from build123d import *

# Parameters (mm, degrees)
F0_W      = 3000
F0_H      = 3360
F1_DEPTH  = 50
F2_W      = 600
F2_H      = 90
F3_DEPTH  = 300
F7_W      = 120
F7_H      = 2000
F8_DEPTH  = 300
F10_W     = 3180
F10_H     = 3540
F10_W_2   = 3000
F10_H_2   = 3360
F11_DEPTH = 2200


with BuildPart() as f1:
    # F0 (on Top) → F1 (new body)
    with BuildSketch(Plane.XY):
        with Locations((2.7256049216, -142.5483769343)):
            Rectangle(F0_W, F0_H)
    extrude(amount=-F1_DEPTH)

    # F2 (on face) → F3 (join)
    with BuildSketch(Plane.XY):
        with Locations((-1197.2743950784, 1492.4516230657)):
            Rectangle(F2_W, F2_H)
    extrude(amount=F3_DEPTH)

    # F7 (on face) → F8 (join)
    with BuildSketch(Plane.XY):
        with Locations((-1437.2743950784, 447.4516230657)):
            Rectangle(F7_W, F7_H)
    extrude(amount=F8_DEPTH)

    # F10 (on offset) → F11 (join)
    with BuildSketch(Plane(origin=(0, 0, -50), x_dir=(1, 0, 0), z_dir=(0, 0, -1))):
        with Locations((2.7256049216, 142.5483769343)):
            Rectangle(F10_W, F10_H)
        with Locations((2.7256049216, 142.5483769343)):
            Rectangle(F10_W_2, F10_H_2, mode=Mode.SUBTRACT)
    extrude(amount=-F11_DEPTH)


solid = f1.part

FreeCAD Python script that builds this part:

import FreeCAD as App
import Part
import Sketcher

V = App.Vector


def add_polygon(sketch, points):
    """Adds a closed chain of lines whose ends are joined by coincident constraints."""
    first, n = sketch.GeometryCount, len(points)
    for a, b in zip(points, points[1:] + points[:1]):
        sketch.addGeometry(Part.LineSegment(App.Vector(*a, 0), App.Vector(*b, 0)), False)
    for i in range(n):
        sketch.addConstraint(Sketcher.Constraint("Coincident", first + i, 2, first + (i + 1) % n, 1))

doc = App.newDocument("Part")
params = doc.addObject("Spreadsheet::Sheet", "Params")
for row, (alias, value) in enumerate([
    ("sketch1_width", "3000 mm"),
    ("sketch1_height", "3360 mm"),
    ("pad1_length", "50 mm"),
    ("sketch2_width", "600 mm"),
    ("sketch2_height", "90 mm"),
    ("pad2_length", "300 mm"),
    ("sketch3_width", "120 mm"),
    ("sketch3_height", "2000 mm"),
    ("pad3_length", "300 mm"),
    ("sketch4_width", "3180 mm"),
    ("sketch4_width2", "3000 mm"),
    ("sketch4_height", "3540 mm"),
    ("sketch4_height2", "3360 mm"),
    ("pad4_length", "2200 mm"),
], start=1):
    params.set(f"A{row}", alias)
    params.set(f"B{row}", "=" + value)
    params.setAlias(f"B{row}", alias)

body = doc.addObject("PartDesign::Body", "Body")

# Sketch on XY plane
sketch1 = doc.addObject("Sketcher::SketchObject", "Sketch")
body.addObject(sketch1)
sketch1.AttachmentSupport = (doc.XY_Plane, [""])
sketch1.MapMode = "FlatFace"
add_polygon(sketch1, [(-1497, 1537), (-1497, -1823), (1503, -1823), (1503, 1537)])  # lines 0-3
sketch1.addConstraint([
    Sketcher.Constraint("Vertical", 0),
    Sketcher.Constraint("Horizontal", 1),
    Sketcher.Constraint("Vertical", 2),
    Sketcher.Constraint("Horizontal", 3),
    Sketcher.Constraint("DistanceX", 1, 1, 1, 2, 3000.0),
    Sketcher.Constraint("DistanceY", 0, 2, 0, 1, 3360.0),
    Sketcher.Constraint("DistanceX", 0, 2, -1, 1, 1497.274395),
    Sketcher.Constraint("DistanceY", 0, 2, -1, 1, 1822.548377),
])
sketch1.setExpression("Constraints[8]", "Params.sketch1_width")
sketch1.setExpression("Constraints[9]", "Params.sketch1_height")
pad1 = doc.addObject("PartDesign::Pad", "Pad")
body.addObject(pad1)
pad1.Profile = sketch1
pad1.setExpression("Length", "Params.pad1_length")
pad1.Reversed = True

# Sketch on XY plane
sketch2 = doc.addObject("Sketcher::SketchObject", "Sketch001")
body.addObject(sketch2)
sketch2.AttachmentSupport = (doc.XY_Plane, [""])
sketch2.MapMode = "FlatFace"
add_polygon(sketch2, [(-1497, 1537), (-1497, 1447), (-897, 1447), (-897, 1537)])  # lines 0-3
sketch2.addConstraint([
    Sketcher.Constraint("Vertical", 0),
    Sketcher.Constraint("Horizontal", 1),
    Sketcher.Constraint("Vertical", 2),
    Sketcher.Constraint("Horizontal", 3),
    Sketcher.Constraint("DistanceX", 1, 1, 1, 2, 600.0),
    Sketcher.Constraint("DistanceY", 0, 2, 0, 1, 90.0),
    Sketcher.Constraint("DistanceX", 0, 2, -1, 1, 1497.274395),
    Sketcher.Constraint("DistanceY", -1, 1, 0, 2, 1447.451623),
])
sketch2.setExpression("Constraints[8]", "Params.sketch2_width")
sketch2.setExpression("Constraints[9]", "Params.sketch2_height")
pad2 = doc.addObject("PartDesign::Pad", "Pad001")
body.addObject(pad2)
pad2.Profile = sketch2
pad2.setExpression("Length", "Params.pad2_length")

# Sketch on XY plane
sketch3 = doc.addObject("Sketcher::SketchObject", "Sketch002")
body.addObject(sketch3)
sketch3.AttachmentSupport = (doc.XY_Plane, [""])
sketch3.MapMode = "FlatFace"
add_polygon(sketch3, [(-1497, 1447), (-1497, -553), (-1377, -553), (-1377, 1447)])  # lines 0-3
sketch3.addConstraint([
    Sketcher.Constraint("Vertical", 0),
    Sketcher.Constraint("Horizontal", 1),
    Sketcher.Constraint("Vertical", 2),
    Sketcher.Constraint("Horizontal", 3),
    Sketcher.Constraint("DistanceX", 1, 1, 1, 2, 120.0),
    Sketcher.Constraint("DistanceY", 0, 2, 0, 1, 2000.0),
    Sketcher.Constraint("DistanceX", 0, 2, -1, 1, 1497.274395),
    Sketcher.Constraint("DistanceY", 0, 2, -1, 1, 552.548377),
])
sketch3.setExpression("Constraints[8]", "Params.sketch3_width")
sketch3.setExpression("Constraints[9]", "Params.sketch3_height")
pad3 = doc.addObject("PartDesign::Pad", "Pad002")
body.addObject(pad3)
pad3.Profile = sketch3
pad3.setExpression("Length", "Params.pad3_length")

# Sketch on XY plane
sketch4 = doc.addObject("Sketcher::SketchObject", "Sketch003")
body.addObject(sketch4)
sketch4.AttachmentSupport = (doc.XY_Plane, [""])
sketch4.MapMode = "FlatFace"
sketch4.AttachmentOffset = App.Placement(V(0, 0, -50), App.Rotation())
add_polygon(sketch4, [(-1587, -1913), (-1587, 1627), (1593, 1627), (1593, -1913)])  # lines 0-3
add_polygon(sketch4, [(1503, 1537), (-1497, 1537), (-1497, -1823), (1503, -1823)])  # lines 4-7
sketch4.addConstraint([
    Sketcher.Constraint("Vertical", 0),
    Sketcher.Constraint("Horizontal", 1),
    Sketcher.Constraint("Vertical", 2),
    Sketcher.Constraint("Horizontal", 3),
    Sketcher.Constraint("Horizontal", 4),
    Sketcher.Constraint("Vertical", 5),
    Sketcher.Constraint("Horizontal", 6),
    Sketcher.Constraint("Vertical", 7),
    Sketcher.Constraint("DistanceX", 1, 1, 1, 2, 3180.0),
    Sketcher.Constraint("DistanceX", 4, 2, 4, 1, 3000.0),
    Sketcher.Constraint("DistanceY", 0, 1, 0, 2, 3540.0),
    Sketcher.Constraint("DistanceY", 5, 2, 5, 1, 3360.0),
    Sketcher.Constraint("DistanceX", 0, 2, 4, 2, 90.0),
    Sketcher.Constraint("DistanceY", 4, 2, 0, 2, 90.0),
    Sketcher.Constraint("DistanceX", 0, 2, -1, 1, 1587.274395),
    Sketcher.Constraint("DistanceY", -1, 1, 0, 2, 1627.451623),
])
sketch4.setExpression("Constraints[16]", "Params.sketch4_width")
sketch4.setExpression("Constraints[17]", "Params.sketch4_width2")
sketch4.setExpression("Constraints[18]", "Params.sketch4_height")
sketch4.setExpression("Constraints[19]", "Params.sketch4_height2")
pad4 = doc.addObject("PartDesign::Pad", "Pad003")
body.addObject(pad4)
pad4.Profile = sketch4
pad4.setExpression("Length", "Params.pad4_length")

doc.recompute()
